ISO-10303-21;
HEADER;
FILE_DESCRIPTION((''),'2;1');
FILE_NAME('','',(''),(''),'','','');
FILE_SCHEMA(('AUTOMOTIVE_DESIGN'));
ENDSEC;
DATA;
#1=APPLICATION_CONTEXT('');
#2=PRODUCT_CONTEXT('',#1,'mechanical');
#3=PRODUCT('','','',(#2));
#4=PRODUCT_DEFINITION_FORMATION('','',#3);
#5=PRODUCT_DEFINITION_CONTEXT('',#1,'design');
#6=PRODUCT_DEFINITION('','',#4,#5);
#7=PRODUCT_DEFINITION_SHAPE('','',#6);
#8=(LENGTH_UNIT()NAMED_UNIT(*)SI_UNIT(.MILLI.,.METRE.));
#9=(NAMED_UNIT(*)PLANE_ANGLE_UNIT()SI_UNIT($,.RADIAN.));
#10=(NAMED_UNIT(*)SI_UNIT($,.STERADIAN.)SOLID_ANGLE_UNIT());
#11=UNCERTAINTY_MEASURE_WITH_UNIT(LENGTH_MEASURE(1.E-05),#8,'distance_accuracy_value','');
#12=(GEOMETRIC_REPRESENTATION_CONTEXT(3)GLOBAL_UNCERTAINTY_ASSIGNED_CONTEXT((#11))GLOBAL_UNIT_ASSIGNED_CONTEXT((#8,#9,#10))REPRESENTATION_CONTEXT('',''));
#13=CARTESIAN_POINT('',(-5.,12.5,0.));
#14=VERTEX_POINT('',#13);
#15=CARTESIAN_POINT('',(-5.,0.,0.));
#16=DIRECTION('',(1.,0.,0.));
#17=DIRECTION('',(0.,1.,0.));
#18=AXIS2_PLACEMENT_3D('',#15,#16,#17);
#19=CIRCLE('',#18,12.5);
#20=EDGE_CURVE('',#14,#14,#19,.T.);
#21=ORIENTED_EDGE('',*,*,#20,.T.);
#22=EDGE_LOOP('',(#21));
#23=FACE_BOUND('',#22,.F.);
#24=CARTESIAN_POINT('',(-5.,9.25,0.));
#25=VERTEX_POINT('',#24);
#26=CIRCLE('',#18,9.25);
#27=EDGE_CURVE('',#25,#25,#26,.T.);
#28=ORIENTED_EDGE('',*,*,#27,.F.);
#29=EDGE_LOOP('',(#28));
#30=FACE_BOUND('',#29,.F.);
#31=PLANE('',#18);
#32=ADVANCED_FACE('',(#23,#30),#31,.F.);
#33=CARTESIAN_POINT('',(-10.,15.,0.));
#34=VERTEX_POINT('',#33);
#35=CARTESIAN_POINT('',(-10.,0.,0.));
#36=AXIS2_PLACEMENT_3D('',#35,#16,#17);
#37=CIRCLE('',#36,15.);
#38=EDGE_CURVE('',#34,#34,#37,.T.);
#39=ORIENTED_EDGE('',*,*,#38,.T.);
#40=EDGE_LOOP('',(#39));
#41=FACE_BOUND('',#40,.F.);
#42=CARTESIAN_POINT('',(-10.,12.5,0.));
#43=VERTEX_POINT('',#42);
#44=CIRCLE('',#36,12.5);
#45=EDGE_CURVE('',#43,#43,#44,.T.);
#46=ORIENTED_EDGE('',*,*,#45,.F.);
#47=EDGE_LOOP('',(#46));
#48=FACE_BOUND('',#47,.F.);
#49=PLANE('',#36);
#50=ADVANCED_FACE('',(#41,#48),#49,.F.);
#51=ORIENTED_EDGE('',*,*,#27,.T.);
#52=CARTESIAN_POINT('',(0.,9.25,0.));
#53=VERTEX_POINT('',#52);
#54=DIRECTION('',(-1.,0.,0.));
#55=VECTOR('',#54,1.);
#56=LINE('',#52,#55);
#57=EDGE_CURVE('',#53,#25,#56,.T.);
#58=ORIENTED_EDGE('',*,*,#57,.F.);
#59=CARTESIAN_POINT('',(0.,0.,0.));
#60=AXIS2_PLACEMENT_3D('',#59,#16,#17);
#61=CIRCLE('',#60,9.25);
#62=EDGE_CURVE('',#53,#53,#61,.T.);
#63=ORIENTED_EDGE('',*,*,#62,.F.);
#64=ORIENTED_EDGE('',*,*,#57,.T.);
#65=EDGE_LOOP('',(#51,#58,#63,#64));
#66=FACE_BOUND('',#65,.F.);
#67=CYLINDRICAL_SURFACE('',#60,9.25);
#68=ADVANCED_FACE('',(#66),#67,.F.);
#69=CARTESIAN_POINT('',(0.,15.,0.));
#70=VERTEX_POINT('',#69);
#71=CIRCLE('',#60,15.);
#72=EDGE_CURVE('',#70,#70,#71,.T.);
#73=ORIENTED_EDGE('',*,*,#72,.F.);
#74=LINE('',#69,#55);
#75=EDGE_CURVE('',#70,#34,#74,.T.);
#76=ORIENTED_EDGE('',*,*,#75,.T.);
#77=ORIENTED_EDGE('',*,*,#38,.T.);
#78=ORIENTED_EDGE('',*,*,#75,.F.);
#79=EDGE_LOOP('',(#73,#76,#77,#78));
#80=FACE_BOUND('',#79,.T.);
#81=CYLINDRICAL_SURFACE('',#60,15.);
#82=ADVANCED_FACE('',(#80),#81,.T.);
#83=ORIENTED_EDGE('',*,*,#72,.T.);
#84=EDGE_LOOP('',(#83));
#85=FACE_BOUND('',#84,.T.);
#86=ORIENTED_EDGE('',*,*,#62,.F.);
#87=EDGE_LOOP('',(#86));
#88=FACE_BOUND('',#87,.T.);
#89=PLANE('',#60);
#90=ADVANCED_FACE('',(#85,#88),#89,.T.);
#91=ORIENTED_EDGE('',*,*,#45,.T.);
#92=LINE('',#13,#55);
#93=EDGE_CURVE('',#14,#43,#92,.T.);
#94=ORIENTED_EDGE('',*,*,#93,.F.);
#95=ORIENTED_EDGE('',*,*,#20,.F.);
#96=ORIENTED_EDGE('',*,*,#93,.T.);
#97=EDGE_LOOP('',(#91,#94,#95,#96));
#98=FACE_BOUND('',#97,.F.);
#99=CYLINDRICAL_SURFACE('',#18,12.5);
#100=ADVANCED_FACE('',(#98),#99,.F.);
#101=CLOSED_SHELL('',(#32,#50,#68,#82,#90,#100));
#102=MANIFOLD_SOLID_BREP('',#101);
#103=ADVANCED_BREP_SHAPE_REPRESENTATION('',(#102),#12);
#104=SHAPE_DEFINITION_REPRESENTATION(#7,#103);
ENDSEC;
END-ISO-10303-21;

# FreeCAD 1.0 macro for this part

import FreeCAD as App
import Part
import Sketcher
from FreeCAD import Vector

doc = App.newDocument("Part")
body = doc.addObject("PartDesign::Body", "Body")

# Sketch on YZ plane
sketch1 = doc.addObject("Sketcher::SketchObject", "Sketch")
body.addObject(sketch1)
sketch1.AttachmentSupport = (doc.YZ_Plane, [""])
sketch1.MapMode = "FlatFace"
sketch1.addGeometry(Part.Circle(Vector(0, 0, 0), Vector(0, 0, 1), 15), False)
sketch1.addConstraint([
    Sketcher.Constraint("Coincident", 0, 3, -1, 1),
    Sketcher.Constraint("Diameter", 0, 30.0),
])
pad1 = doc.addObject("PartDesign::Pad", "Pad")
body.addObject(pad1)
pad1.Profile = sketch1
pad1.Length = 10
pad1.Reversed = True

# Sketch on YZ plane
sketch2 = doc.addObject("Sketcher::SketchObject", "Sketch001")
body.addObject(sketch2)
sketch2.AttachmentSupport = (doc.YZ_Plane, [""])
sketch2.MapMode = "FlatFace"
sketch2.addGeometry(Part.Circle(Vector(0, 0, 0), Vector(0, 0, 1), 9), False)
sketch2.addConstraint([
    Sketcher.Constraint("Coincident", 0, 3, -1, 1),
    Sketcher.Constraint("Diameter", 0, 18.5),
])
pocket1 = doc.addObject("PartDesign::Pocket", "Pocket")
body.addObject(pocket1)
pocket1.Profile = sketch2
pocket1.Length = 5

# Sketch on YZ plane
sketch3 = doc.addObject("Sketcher::SketchObject", "Sketch002")
body.addObject(sketch3)
sketch3.AttachmentSupport = (doc.YZ_Plane, [""])
sketch3.MapMode = "FlatFace"
sketch3.AttachmentOffset = App.Placement(Vector(0, 0, -5), App.Rotation())
sketch3.addGeometry(Part.Circle(Vector(0, 0, 0), Vector(0, 0, 1), 12), False)
sketch3.addConstraint([
    Sketcher.Constraint("Coincident", 0, 3, -1, 1),
    Sketcher.Constraint("Diameter", 0, 25.0),
])
pocket2 = doc.addObject("PartDesign::Pocket", "Pocket001")
body.addObject(pocket2)
pocket2.Profile = sketch3
pocket2.Length = 25

doc.recompute()
